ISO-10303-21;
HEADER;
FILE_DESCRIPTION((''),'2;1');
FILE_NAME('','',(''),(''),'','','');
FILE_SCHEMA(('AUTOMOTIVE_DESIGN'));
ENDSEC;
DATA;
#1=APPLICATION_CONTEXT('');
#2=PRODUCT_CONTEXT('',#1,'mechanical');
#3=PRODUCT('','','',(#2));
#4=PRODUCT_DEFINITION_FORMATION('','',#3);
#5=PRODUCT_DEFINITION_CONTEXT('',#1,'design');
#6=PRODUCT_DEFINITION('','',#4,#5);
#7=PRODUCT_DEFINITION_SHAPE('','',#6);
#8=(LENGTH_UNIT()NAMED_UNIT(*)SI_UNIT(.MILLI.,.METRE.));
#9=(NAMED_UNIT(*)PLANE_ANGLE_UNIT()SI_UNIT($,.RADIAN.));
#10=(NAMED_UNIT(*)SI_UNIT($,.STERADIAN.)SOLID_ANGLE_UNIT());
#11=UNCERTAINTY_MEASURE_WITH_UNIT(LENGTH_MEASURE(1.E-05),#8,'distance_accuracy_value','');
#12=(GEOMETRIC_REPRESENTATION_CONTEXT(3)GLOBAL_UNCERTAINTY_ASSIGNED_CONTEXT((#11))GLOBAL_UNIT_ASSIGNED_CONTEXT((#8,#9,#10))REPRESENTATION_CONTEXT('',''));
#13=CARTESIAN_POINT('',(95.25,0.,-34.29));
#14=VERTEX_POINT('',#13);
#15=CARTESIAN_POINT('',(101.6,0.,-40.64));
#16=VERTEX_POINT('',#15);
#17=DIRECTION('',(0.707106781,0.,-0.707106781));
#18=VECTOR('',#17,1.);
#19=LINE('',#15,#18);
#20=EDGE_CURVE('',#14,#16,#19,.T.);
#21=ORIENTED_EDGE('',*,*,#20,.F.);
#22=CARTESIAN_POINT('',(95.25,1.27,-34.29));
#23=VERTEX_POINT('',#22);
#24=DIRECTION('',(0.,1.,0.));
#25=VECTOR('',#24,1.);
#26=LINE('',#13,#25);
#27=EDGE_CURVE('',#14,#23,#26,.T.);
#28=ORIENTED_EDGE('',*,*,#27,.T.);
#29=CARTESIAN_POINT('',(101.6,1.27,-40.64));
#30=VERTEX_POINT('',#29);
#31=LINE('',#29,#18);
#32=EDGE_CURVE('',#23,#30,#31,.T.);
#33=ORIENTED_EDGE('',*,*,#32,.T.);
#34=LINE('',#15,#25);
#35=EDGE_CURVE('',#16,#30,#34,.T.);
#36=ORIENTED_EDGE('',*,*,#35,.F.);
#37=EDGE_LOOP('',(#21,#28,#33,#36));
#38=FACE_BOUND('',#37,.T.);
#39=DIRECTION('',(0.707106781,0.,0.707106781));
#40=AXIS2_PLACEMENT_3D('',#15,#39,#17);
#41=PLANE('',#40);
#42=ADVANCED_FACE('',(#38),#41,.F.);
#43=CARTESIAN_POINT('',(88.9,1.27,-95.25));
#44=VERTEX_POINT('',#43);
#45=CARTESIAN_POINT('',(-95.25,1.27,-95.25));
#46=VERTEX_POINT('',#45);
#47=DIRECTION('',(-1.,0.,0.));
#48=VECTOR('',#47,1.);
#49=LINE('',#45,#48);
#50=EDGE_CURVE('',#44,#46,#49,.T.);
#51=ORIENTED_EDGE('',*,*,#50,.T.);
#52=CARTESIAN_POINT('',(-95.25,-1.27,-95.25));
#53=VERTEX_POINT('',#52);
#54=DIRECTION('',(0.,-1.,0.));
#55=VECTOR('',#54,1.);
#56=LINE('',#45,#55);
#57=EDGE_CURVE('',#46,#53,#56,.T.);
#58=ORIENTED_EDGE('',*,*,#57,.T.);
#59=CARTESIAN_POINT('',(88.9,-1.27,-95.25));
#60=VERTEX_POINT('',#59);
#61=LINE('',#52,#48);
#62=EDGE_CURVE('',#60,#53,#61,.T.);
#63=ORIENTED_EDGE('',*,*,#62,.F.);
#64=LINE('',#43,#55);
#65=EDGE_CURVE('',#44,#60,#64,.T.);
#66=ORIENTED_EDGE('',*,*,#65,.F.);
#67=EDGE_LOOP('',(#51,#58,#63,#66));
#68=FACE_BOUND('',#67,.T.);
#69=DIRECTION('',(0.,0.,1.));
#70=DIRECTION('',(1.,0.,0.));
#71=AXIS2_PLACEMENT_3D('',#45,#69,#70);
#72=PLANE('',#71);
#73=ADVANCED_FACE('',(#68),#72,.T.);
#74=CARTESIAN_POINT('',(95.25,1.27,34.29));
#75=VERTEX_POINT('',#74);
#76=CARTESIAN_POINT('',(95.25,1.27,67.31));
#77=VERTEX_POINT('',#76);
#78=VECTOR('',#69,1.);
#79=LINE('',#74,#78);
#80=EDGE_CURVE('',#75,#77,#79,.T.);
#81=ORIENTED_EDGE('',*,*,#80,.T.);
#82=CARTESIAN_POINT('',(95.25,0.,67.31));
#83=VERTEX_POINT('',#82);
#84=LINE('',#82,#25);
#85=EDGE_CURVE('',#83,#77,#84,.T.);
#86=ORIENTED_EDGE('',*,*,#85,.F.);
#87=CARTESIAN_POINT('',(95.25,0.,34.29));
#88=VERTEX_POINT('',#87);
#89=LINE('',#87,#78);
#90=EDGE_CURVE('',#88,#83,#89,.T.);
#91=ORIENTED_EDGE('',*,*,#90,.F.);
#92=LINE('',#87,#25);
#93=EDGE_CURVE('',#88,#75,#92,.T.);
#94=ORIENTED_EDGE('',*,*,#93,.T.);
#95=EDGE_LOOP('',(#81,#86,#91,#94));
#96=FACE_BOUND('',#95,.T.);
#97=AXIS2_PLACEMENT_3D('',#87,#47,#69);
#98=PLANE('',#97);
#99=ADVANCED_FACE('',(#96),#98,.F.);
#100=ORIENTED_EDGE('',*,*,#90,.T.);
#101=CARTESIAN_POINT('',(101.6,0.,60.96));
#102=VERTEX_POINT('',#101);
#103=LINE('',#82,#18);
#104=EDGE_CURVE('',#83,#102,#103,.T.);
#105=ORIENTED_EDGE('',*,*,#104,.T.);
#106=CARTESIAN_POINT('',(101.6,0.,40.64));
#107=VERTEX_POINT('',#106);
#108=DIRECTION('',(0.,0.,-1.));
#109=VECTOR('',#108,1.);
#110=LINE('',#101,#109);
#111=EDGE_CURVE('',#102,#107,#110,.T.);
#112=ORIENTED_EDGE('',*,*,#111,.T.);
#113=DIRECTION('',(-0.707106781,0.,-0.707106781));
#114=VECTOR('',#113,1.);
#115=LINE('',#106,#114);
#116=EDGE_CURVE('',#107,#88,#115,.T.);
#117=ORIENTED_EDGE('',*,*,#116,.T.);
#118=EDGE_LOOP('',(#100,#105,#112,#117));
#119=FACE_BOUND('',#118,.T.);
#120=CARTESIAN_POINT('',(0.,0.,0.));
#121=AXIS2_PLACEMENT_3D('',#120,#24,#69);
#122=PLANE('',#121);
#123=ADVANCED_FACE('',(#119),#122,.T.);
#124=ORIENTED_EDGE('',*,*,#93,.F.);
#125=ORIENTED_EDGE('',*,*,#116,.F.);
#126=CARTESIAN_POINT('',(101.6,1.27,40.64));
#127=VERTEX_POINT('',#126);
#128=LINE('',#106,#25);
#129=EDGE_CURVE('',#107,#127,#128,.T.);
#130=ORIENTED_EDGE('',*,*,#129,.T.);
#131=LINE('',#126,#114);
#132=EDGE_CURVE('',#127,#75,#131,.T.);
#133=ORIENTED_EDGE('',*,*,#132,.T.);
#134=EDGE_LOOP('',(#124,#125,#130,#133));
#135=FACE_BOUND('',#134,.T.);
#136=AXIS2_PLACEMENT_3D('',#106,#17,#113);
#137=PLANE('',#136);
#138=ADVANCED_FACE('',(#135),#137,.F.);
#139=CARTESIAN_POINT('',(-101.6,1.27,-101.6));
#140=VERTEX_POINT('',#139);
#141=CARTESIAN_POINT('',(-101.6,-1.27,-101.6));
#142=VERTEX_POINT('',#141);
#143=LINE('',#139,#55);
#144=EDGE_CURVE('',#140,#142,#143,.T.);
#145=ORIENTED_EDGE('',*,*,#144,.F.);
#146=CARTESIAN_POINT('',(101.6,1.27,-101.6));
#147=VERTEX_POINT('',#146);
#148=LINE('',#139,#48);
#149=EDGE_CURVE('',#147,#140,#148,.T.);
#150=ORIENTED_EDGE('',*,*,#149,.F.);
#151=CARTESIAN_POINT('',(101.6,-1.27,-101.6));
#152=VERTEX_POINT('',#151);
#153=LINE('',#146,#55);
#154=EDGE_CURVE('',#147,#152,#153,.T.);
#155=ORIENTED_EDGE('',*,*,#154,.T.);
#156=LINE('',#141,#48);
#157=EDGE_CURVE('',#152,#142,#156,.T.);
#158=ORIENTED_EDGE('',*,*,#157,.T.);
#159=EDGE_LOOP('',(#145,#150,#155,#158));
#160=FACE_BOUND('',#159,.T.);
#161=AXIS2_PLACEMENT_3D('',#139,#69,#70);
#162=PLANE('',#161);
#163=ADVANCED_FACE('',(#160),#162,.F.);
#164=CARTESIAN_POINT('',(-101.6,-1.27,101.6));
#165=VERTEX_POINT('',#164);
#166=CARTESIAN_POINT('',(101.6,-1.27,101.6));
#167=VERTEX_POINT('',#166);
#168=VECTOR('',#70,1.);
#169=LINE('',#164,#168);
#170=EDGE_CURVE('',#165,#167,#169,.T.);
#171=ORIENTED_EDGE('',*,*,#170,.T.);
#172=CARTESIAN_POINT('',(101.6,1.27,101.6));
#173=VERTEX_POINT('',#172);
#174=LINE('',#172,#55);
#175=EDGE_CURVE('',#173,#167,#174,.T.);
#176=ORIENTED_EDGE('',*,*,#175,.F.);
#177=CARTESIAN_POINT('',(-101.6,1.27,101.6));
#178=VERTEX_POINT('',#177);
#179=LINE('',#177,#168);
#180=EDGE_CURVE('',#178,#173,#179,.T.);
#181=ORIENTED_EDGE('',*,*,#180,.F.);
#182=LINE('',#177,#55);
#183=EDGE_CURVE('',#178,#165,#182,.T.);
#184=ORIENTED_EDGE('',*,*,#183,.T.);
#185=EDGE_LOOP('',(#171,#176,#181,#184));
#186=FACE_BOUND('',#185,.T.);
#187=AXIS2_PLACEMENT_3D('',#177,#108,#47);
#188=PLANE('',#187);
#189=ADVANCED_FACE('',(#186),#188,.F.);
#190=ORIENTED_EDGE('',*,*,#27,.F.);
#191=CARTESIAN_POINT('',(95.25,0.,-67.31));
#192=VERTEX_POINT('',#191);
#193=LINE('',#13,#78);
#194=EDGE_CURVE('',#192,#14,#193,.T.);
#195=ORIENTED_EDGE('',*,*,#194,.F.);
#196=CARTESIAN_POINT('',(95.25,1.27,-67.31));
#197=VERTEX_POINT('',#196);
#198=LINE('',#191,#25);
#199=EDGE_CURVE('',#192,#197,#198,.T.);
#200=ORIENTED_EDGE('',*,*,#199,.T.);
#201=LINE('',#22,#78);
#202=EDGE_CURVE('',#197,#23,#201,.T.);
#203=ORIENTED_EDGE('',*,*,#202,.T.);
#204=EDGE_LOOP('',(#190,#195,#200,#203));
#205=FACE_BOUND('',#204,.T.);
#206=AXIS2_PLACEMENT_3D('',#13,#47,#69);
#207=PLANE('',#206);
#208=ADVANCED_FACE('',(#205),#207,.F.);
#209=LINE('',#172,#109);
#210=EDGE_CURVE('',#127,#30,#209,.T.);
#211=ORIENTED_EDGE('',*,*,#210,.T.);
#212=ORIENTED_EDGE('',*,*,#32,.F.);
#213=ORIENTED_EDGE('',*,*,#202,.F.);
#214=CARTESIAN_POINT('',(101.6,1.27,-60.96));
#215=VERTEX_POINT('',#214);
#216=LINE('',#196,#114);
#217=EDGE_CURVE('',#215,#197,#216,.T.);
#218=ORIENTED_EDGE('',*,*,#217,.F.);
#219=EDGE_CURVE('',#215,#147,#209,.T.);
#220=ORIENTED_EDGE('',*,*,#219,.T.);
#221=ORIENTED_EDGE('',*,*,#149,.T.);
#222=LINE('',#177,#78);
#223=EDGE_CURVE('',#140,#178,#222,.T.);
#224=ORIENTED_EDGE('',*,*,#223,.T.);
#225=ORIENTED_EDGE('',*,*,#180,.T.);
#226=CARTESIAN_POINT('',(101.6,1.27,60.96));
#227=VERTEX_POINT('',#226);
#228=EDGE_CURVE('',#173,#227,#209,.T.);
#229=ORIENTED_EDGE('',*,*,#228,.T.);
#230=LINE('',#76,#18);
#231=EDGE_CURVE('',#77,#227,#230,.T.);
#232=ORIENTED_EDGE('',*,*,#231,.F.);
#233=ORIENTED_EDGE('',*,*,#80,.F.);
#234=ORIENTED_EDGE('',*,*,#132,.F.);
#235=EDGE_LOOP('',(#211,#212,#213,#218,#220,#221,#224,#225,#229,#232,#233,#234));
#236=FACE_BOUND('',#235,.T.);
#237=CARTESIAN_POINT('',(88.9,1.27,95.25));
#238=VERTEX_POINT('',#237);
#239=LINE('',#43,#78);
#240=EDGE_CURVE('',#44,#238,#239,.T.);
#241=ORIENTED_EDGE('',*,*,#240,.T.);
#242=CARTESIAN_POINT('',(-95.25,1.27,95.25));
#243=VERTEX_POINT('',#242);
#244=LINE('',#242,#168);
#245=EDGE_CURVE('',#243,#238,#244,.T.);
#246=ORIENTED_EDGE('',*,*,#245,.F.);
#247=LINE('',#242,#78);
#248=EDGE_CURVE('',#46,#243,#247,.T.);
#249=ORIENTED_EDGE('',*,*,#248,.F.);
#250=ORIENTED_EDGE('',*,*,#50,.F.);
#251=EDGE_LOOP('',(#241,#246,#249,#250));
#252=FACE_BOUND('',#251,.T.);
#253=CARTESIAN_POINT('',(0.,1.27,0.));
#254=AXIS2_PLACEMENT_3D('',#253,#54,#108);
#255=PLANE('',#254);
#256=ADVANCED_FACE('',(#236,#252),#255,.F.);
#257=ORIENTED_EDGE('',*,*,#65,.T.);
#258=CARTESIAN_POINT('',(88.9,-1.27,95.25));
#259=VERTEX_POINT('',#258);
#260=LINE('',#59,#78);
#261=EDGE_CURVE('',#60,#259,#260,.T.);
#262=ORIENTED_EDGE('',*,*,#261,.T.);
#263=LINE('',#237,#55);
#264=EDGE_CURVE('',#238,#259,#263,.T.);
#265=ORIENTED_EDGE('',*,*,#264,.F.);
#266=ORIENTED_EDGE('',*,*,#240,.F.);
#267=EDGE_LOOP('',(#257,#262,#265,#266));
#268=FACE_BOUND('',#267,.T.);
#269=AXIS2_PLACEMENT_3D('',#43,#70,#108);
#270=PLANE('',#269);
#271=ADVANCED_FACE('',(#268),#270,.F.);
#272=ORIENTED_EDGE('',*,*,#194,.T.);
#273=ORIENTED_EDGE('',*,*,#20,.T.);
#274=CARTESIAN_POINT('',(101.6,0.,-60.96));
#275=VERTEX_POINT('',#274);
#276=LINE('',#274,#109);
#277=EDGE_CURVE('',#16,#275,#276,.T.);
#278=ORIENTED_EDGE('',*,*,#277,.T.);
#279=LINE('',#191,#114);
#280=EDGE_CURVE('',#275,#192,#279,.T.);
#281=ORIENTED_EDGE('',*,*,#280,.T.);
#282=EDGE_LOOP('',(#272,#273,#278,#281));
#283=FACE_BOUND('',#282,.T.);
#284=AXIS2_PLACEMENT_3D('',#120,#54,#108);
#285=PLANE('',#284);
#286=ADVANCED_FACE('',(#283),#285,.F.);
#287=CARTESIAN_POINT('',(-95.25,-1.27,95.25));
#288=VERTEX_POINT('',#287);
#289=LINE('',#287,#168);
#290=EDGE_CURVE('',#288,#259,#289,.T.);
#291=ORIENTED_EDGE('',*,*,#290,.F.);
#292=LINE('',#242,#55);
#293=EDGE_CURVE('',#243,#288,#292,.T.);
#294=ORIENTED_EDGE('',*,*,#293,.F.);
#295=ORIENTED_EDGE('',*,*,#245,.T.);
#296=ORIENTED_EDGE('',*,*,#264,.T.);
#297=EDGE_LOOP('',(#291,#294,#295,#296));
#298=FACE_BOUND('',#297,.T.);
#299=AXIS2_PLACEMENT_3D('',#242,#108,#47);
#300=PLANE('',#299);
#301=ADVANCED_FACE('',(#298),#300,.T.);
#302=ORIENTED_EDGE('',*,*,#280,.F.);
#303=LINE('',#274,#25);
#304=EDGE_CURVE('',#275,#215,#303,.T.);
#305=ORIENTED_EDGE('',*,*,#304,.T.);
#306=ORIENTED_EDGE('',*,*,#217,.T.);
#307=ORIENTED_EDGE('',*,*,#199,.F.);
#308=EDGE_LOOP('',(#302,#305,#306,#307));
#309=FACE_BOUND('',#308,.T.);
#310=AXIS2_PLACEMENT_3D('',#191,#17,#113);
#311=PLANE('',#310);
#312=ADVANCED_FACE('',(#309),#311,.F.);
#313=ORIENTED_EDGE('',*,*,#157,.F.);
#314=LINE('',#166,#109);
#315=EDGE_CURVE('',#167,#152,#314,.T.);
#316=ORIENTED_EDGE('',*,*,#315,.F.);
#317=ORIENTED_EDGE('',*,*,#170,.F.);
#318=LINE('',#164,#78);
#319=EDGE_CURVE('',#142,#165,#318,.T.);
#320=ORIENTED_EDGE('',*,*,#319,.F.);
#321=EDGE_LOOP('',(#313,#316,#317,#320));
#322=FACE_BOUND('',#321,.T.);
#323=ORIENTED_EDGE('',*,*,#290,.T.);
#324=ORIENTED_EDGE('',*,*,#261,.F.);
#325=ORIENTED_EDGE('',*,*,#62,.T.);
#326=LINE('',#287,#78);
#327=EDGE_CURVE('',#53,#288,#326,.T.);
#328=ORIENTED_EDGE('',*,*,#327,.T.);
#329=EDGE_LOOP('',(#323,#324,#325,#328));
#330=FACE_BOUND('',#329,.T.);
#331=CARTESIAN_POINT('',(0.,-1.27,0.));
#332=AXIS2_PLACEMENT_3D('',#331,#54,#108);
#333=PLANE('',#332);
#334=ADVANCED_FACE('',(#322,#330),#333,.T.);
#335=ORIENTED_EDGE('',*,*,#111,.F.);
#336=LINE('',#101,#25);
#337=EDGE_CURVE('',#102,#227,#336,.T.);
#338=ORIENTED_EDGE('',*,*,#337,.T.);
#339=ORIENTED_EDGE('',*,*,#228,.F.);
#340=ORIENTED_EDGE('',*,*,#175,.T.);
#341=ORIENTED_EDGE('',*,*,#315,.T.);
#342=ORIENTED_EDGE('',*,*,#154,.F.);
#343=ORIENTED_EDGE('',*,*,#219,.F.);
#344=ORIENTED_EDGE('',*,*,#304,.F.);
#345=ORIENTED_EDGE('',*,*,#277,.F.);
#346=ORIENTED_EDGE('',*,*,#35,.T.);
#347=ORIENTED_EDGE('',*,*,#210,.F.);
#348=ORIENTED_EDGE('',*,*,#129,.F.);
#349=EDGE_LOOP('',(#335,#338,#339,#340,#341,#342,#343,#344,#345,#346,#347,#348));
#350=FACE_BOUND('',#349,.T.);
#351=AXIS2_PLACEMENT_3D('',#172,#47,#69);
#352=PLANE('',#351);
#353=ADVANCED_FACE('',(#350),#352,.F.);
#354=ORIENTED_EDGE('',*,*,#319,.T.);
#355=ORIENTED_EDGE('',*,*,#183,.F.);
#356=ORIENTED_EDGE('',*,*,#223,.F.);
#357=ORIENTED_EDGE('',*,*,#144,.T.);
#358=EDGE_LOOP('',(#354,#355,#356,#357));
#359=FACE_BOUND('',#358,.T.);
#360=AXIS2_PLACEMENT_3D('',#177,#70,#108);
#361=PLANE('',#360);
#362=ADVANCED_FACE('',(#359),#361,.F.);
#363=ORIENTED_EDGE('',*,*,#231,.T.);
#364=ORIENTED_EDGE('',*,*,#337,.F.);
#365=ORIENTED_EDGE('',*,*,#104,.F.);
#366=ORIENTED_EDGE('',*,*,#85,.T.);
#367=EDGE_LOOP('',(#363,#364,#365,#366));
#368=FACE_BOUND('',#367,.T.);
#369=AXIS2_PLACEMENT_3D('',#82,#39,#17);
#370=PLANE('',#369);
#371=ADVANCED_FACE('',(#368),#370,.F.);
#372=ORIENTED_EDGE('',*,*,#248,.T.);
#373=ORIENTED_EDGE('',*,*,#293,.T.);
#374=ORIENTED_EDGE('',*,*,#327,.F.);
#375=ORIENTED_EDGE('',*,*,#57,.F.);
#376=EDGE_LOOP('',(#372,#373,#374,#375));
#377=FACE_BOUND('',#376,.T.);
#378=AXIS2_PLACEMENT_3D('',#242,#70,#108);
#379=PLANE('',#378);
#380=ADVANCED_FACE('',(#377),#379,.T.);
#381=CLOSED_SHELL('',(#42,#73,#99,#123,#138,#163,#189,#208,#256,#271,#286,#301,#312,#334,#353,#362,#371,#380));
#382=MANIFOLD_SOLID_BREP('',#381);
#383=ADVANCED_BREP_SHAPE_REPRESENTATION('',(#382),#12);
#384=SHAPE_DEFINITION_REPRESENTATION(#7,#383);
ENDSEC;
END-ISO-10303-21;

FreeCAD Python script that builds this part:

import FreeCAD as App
import Part
import Sketcher

V = App.Vector
Q = App.Units.Quantity

doc = App.newDocument("Part")
body = doc.addObject("PartDesign::Body", "Body")

# Sketch on XZ plane
sketch1 = doc.addObject("Sketcher::SketchObject", "Sketch")
body.addObject(sketch1)
sketch1.AttachmentSupport = (doc.XZ_Plane, [""])
sketch1.MapMode = "FlatFace"
sketch1.addGeometry([
    Part.LineSegment(V(-102, -102, 0), V(-102, 102, 0)),  # 0
    Part.LineSegment(V(-102, 102, 0), V(102, 102, 0)),  # 1
    Part.LineSegment(V(102, 102, 0), V(102, -102, 0)),  # 2
    Part.LineSegment(V(102, -102, 0), V(-102, -102, 0)),  # 3
    Part.LineSegment(V(95, 95, 0), V(-95, 95, 0)),  # 4
    Part.LineSegment(V(-95, 95, 0), V(-95, -95, 0)),  # 5
    Part.LineSegment(V(-95, -95, 0), V(95, -95, 0)),  # 6
    Part.LineSegment(V(95, -95, 0), V(95, 95, 0)),  # 7
], False)
sketch1.addConstraint([
    Sketcher.Constraint("Coincident", 0, 2, 1, 1),
    Sketcher.Constraint("Coincident", 1, 2, 2, 1),
    Sketcher.Constraint("Coincident", 2, 2, 3, 1),
    Sketcher.Constraint("Coincident", 3, 2, 0, 1),
    Sketcher.Constraint("Coincident", 4, 2, 5, 1),
    Sketcher.Constraint("Coincident", 5, 2, 6, 1),
    Sketcher.Constraint("Coincident", 6, 2, 7, 1),
    Sketcher.Constraint("Coincident", 7, 2, 4, 1),
    Sketcher.Constraint("Vertical", 0),
    Sketcher.Constraint("Horizontal", 1),
    Sketcher.Constraint("Vertical", 2),
    Sketcher.Constraint("Horizontal", 3),
    Sketcher.Constraint("Horizontal", 4),
    Sketcher.Constraint("Vertical", 5),
    Sketcher.Constraint("Horizontal", 6),
    Sketcher.Constraint("Vertical", 7),
    Sketcher.Constraint("Symmetric", 0, 2, 2, 2, -1, 1),
    Sketcher.Constraint("Symmetric", 4, 2, 6, 2, -1, 1),
    Sketcher.Constraint("Equal", 3, 0),
    Sketcher.Constraint("Equal", 6, 5),
    Sketcher.Constraint("DistanceX", 1, 1, 1, 2, Q("8 in")),
    Sketcher.Constraint("DistanceX", 4, 2, 4, 1, Q("7.5 in")),
])
pad1 = doc.addObject("PartDesign::Pad", "Pad")
body.addObject(pad1)
pad1.Profile = sketch1
pad1.Length = Q("0.1 in")
pad1.Midplane = True

# Sketch on XZ plane
sketch2 = doc.addObject("Sketcher::SketchObject", "Sketch001")
body.addObject(sketch2)
sketch2.AttachmentSupport = (doc.XZ_Plane, [""])
sketch2.MapMode = "FlatFace"
sketch2.addGeometry([
    Part.LineSegment(V(89, -95, 0), V(89, 95, 0)),
    Part.LineSegment(V(89, 95, 0), V(95, 95, 0)),
    Part.LineSegment(V(95, 95, 0), V(95, -95, 0)),
    Part.LineSegment(V(95, -95, 0), V(89, -95, 0)),
], False)
sketch2.addConstraint([
    Sketcher.Constraint("Coincident", 0, 2, 1, 1),
    Sketcher.Constraint("Coincident", 1, 2, 2, 1),
    Sketcher.Constraint("Coincident", 2, 2, 3, 1),
    Sketcher.Constraint("Coincident", 3, 2, 0, 1),
    Sketcher.Constraint("Vertical", 0),
    Sketcher.Constraint("Horizontal", 1),
    Sketcher.Constraint("Vertical", 2),
    Sketcher.Constraint("Horizontal", 3),
    Sketcher.Constraint("DistanceY", 0, 1, 0, 2, Q("7.5 in")),
    Sketcher.Constraint("DistanceX", 1, 1, 1, 2, Q("0.25 in")),
    Sketcher.Constraint("DistanceX", -1, 1, 0, 2, Q("3.5 in")),
    Sketcher.Constraint("DistanceY", -1, 1, 0, 2, Q("3.75 in")),
])
pad2 = doc.addObject("PartDesign::Pad", "Pad001")
body.addObject(pad2)
pad2.Profile = sketch2
pad2.Length = Q("0.1 in")
pad2.Midplane = True

# Sketch on XZ plane
sketch3 = doc.addObject("Sketcher::SketchObject", "Sketch002")
body.addObject(sketch3)
sketch3.AttachmentSupport = (doc.XZ_Plane, [""])
sketch3.MapMode = "FlatFace"
sketch3.AttachmentOffset = App.Placement(V(0, 0, -0.05 * 25.4), App.Rotation())
sketch3.addGeometry([
    Part.LineSegment(V(95, -34, 0), V(102, -41, 0)),  # 0
    Part.LineSegment(V(102, -41, 0), V(102, -61, 0)),  # 1
    Part.LineSegment(V(102, -61, 0), V(95, -67, 0)),  # 2
    Part.LineSegment(V(95, -67, 0), V(95, -34, 0)),  # 3
    Part.LineSegment(V(102, 61, 0), V(102, 41, 0)),  # 4
    Part.LineSegment(V(102, 41, 0), V(95, 34, 0)),  # 5
    Part.LineSegment(V(95, 34, 0), V(95, 67, 0)),  # 6
    Part.LineSegment(V(95, 67, 0), V(102, 61, 0)),  # 7
], False)
sketch3.addConstraint([
    Sketcher.Constraint("Coincident", 0, 2, 1, 1),
    Sketcher.Constraint("Coincident", 1, 2, 2, 1),
    Sketcher.Constraint("Coincident", 2, 2, 3, 1),
    Sketcher.Constraint("Coincident", 3, 2, 0, 1),
    Sketcher.Constraint("Coincident", 4, 2, 5, 1),
    Sketcher.Constraint("Coincident", 5, 2, 6, 1),
    Sketcher.Constraint("Coincident", 6, 2, 7, 1),
    Sketcher.Constraint("Coincident", 7, 2, 4, 1),
    Sketcher.Constraint("Vertical", 1),
    Sketcher.Constraint("Vertical", 3),
    Sketcher.Constraint("Vertical", 4),
    Sketcher.Constraint("Vertical", 6),
    Sketcher.Constraint("Symmetric", 0, 2, 4, 2, -1),
    Sketcher.Constraint("Symmetric", 3, 2, 5, 2, -1),
    Sketcher.Constraint("Perpendicular", 0, 2),
    Sketcher.Constraint("Parallel", 2, 5),
    Sketcher.Constraint("Perpendicular", 5, 7),
    Sketcher.Constraint("Equal", 1, 4),
    Sketcher.Constraint("DistanceY", 1, 2, 1, 1, Q("0.8 in")),
    Sketcher.Constraint("DistanceY", 3, 1, 3, 2, Q("1.3 in")),
    Sketcher.Constraint("DistanceX", -1, 1, 0, 2, Q("4 in")),
    Sketcher.Constraint("DistanceY", 1, 2, 4, 2, Q("4 in")),
])
pocket1 = doc.addObject("PartDesign::Pocket", "Pocket")
body.addObject(pocket1)
pocket1.Profile = sketch3
pocket1.Length = Q("0.05 in")
pocket1.Reversed = True

doc.recompute()
